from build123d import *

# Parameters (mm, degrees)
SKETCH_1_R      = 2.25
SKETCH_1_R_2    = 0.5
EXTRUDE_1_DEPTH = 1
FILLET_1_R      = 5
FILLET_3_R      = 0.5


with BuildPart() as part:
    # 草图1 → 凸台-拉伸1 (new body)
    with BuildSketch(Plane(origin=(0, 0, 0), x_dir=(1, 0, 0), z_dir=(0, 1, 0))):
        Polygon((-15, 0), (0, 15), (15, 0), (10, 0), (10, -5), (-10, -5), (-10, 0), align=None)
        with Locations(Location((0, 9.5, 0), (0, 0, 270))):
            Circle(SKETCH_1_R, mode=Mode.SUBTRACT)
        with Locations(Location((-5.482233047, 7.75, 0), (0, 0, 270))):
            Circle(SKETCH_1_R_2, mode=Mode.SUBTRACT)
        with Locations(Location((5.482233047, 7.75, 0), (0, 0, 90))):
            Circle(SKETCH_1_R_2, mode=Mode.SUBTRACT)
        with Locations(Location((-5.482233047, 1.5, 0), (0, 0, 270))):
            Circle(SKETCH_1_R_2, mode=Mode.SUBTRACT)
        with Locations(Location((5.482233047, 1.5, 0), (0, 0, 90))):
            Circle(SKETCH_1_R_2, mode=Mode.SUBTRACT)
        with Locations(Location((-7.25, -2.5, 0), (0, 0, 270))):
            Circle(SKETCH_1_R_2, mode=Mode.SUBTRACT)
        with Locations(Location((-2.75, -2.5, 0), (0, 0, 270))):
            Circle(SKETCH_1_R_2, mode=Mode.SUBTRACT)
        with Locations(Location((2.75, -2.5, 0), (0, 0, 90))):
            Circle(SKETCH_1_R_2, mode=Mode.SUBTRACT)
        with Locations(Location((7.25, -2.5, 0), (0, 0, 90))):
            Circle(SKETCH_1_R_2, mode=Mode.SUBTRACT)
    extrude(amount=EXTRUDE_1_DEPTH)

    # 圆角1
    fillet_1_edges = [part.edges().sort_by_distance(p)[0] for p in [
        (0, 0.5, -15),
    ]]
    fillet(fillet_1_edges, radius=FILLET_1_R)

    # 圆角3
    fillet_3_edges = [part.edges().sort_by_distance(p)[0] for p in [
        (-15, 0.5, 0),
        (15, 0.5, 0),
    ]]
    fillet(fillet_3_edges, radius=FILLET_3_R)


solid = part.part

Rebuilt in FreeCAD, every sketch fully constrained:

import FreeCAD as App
import Part
import Sketcher
from FreeCAD import Vector


def edges_at(feature, points):
    """Names of the edges that pass closest to the given points."""
    edges = feature.Shape.Edges
    near = lambda p: min(range(len(edges)), key=lambda i: edges[i].distToShape(Part.Vertex(*p))[0])
    return sorted({f"Edge{near(p) + 1}" for p in points})

doc = App.newDocument("Part")
body = doc.addObject("PartDesign::Body", "Body")

# Sketch on XZ plane
sketch1 = doc.addObject("Sketcher::SketchObject", "Sketch")
body.addObject(sketch1)
sketch1.AttachmentSupport = (doc.XZ_Plane, [""])
sketch1.MapMode = "FlatFace"
sketch1.addGeometry(Part.LineSegment(Vector(0, -15, 0), Vector(-15, 0, 0)), False)
sketch1.addGeometry(Part.LineSegment(Vector(-15, 0, 0), Vector(-10, 0, 0)), False)
sketch1.addGeometry(Part.LineSegment(Vector(-10, 0, 0), Vector(-10, 5, 0)), False)
sketch1.addGeometry(Part.LineSegment(Vector(-10, 5, 0), Vector(10, 5, 0)), False)
sketch1.addGeometry(Part.LineSegment(Vector(10, 5, 0), Vector(10, 0, 0)), False)
sketch1.addGeometry(Part.LineSegment(Vector(10, 0, 0), Vector(15, 0, 0)), False)
sketch1.addGeometry(Part.LineSegment(Vector(15, 0, 0), Vector(0, -15, 0)), False)
sketch1.addGeometry(Part.Circle(Vector(7.25, 2.5, 0), Vector(0, 0, 1), 0.5), False)
sketch1.addGeometry(Part.Circle(Vector(2.75, 2.5, 0), Vector(0, 0, 1), 0.5), False)
sketch1.addGeometry(Part.Circle(Vector(5.482233, -1.5, 0), Vector(0, 0, 1), 0.5), False)
sketch1.addGeometry(Part.Circle(Vector(-2.75, 2.5, 0), Vector(0, 0, 1), 0.5), False)
sketch1.addGeometry(Part.Circle(Vector(-7.25, 2.5, 0), Vector(0, 0, 1), 0.5), False)
sketch1.addGeometry(Part.Circle(Vector(-5.482233, -1.5, 0), Vector(0, 0, 1), 0.5), False)
sketch1.addGeometry(Part.Circle(Vector(5.482233, -7.75, 0), Vector(0, 0, 1), 0.5), False)
sketch1.addGeometry(Part.Circle(Vector(-5.482233, -7.75, 0), Vector(0, 0, 1), 0.5), False)
sketch1.addGeometry(Part.Circle(Vector(0, -9.5, 0), Vector(0, 0, 1), 2.25), False)
sketch1.addConstraint(Sketcher.Constraint("Coincident", 0, 2, 1, 1))
sketch1.addConstraint(Sketcher.Constraint("Coincident", 1, 2, 2, 1))
sketch1.addConstraint(Sketcher.Constraint("Coincident", 2, 2, 3, 1))
sketch1.addConstraint(Sketcher.Constraint("Coincident", 3, 2, 4, 1))
sketch1.addConstraint(Sketcher.Constraint("Coincident", 4, 2, 5, 1))
sketch1.addConstraint(Sketcher.Constraint("Coincident", 5, 2, 6, 1))
sketch1.addConstraint(Sketcher.Constraint("Coincident", 6, 2, 0, 1))
sketch1.addConstraint(Sketcher.Constraint("Horizontal", 1))
sketch1.addConstraint(Sketcher.Constraint("Vertical", 2))
sketch1.addConstraint(Sketcher.Constraint("Horizontal", 3))
sketch1.addConstraint(Sketcher.Constraint("Vertical", 4))
sketch1.addConstraint(Sketcher.Constraint("Horizontal", 5))
sketch1.addConstraint(Sketcher.Constraint("Equal", 7, 8))
sketch1.addConstraint(Sketcher.Constraint("Equal", 8, 9))
sketch1.addConstraint(Sketcher.Constraint("Equal", 9, 10))
sketch1.addConstraint(Sketcher.Constraint("Equal", 10, 11))
sketch1.addConstraint(Sketcher.Constraint("Equal", 11, 12))
sketch1.addConstraint(Sketcher.Constraint("Equal", 12, 13))
sketch1.addConstraint(Sketcher.Constraint("Equal", 13, 14))
sketch1.addConstraint(Sketcher.Constraint("Symmetric", 1, 2, 4, 2, -1, 1))
sketch1.addConstraint(Sketcher.Constraint("Symmetric", 8, 3, 10, 3, -2))
sketch1.addConstraint(Sketcher.Constraint("Symmetric", 7, 3, 11, 3, -2))
sketch1.addConstraint(Sketcher.Constraint("Symmetric", 9, 3, 12, 3, -2))
sketch1.addConstraint(Sketcher.Constraint("Symmetric", 13, 3, 14, 3, -2))
sketch1.addConstraint(Sketcher.Constraint("Symmetric", 0, 2, 5, 2, -2))
sketch1.addConstraint(Sketcher.Constraint("PointOnObject", 15, 3, -2))
sketch1.addConstraint(Sketcher.Constraint("PointOnObject", 6, 2, -2))
sketch1.addConstraint(Sketcher.Constraint("Perpendicular", 0, 6))
sketch1.addConstraint(Sketcher.Constraint("Horizontal", 7, 3, 8, 3))
sketch1.addConstraint(Sketcher.Constraint("Vertical", 9, 3, 13, 3))
sketch1.addConstraint(Sketcher.Constraint("Equal", 5, 2))
sketch1.addConstraint(Sketcher.Constraint("Diameter", 7, 1.0))
sketch1.addConstraint(Sketcher.Constraint("Diameter", 15, 4.5))
sketch1.addConstraint(Sketcher.Constraint("DistanceX", 1, 1, 1, 2, 5.0))
sketch1.addConstraint(Sketcher.Constraint("DistanceX", 3, 1, 3, 2, 20.0))
sketch1.addConstraint(Sketcher.Constraint("DistanceY", 9, 3, 7, 3, 4.0))
sketch1.addConstraint(Sketcher.Constraint("DistanceX", 10, 3, 7, 3, 10.0))
sketch1.addConstraint(Sketcher.Constraint("DistanceY", 15, 3, 9, 3, 8.0))
sketch1.addConstraint(Sketcher.Constraint("DistanceY", -1, 1, 7, 3, 2.5))
sketch1.addConstraint(Sketcher.Constraint("DistanceX", 8, 3, 7, 3, 4.5))
sketch1.addConstraint(Sketcher.Constraint("DistanceY", 13, 3, -1, 1, 7.75))
sketch1.addConstraint(Sketcher.Constraint("DistanceX", -1, 1, 9, 3, 5.482233))
pad1 = doc.addObject("PartDesign::Pad", "Pad")
body.addObject(pad1)
pad1.Profile = sketch1
pad1.Length = 1
pad1.Reversed = True
doc.recompute()

fillet = doc.addObject("PartDesign::Fillet", "Fillet")
body.addObject(fillet)
fillet.Base = (pad1, edges_at(pad1, [(0, 0.5, -15)]))
fillet.Radius = 5
doc.recompute()

fillet2 = doc.addObject("PartDesign::Fillet", "Fillet001")
body.addObject(fillet2)
fillet2.Base = (fillet, edges_at(fillet, [(-15, 0.5, 0), (15, 0.5, 0)]))
fillet2.Radius = 0.5

doc.recompute()
